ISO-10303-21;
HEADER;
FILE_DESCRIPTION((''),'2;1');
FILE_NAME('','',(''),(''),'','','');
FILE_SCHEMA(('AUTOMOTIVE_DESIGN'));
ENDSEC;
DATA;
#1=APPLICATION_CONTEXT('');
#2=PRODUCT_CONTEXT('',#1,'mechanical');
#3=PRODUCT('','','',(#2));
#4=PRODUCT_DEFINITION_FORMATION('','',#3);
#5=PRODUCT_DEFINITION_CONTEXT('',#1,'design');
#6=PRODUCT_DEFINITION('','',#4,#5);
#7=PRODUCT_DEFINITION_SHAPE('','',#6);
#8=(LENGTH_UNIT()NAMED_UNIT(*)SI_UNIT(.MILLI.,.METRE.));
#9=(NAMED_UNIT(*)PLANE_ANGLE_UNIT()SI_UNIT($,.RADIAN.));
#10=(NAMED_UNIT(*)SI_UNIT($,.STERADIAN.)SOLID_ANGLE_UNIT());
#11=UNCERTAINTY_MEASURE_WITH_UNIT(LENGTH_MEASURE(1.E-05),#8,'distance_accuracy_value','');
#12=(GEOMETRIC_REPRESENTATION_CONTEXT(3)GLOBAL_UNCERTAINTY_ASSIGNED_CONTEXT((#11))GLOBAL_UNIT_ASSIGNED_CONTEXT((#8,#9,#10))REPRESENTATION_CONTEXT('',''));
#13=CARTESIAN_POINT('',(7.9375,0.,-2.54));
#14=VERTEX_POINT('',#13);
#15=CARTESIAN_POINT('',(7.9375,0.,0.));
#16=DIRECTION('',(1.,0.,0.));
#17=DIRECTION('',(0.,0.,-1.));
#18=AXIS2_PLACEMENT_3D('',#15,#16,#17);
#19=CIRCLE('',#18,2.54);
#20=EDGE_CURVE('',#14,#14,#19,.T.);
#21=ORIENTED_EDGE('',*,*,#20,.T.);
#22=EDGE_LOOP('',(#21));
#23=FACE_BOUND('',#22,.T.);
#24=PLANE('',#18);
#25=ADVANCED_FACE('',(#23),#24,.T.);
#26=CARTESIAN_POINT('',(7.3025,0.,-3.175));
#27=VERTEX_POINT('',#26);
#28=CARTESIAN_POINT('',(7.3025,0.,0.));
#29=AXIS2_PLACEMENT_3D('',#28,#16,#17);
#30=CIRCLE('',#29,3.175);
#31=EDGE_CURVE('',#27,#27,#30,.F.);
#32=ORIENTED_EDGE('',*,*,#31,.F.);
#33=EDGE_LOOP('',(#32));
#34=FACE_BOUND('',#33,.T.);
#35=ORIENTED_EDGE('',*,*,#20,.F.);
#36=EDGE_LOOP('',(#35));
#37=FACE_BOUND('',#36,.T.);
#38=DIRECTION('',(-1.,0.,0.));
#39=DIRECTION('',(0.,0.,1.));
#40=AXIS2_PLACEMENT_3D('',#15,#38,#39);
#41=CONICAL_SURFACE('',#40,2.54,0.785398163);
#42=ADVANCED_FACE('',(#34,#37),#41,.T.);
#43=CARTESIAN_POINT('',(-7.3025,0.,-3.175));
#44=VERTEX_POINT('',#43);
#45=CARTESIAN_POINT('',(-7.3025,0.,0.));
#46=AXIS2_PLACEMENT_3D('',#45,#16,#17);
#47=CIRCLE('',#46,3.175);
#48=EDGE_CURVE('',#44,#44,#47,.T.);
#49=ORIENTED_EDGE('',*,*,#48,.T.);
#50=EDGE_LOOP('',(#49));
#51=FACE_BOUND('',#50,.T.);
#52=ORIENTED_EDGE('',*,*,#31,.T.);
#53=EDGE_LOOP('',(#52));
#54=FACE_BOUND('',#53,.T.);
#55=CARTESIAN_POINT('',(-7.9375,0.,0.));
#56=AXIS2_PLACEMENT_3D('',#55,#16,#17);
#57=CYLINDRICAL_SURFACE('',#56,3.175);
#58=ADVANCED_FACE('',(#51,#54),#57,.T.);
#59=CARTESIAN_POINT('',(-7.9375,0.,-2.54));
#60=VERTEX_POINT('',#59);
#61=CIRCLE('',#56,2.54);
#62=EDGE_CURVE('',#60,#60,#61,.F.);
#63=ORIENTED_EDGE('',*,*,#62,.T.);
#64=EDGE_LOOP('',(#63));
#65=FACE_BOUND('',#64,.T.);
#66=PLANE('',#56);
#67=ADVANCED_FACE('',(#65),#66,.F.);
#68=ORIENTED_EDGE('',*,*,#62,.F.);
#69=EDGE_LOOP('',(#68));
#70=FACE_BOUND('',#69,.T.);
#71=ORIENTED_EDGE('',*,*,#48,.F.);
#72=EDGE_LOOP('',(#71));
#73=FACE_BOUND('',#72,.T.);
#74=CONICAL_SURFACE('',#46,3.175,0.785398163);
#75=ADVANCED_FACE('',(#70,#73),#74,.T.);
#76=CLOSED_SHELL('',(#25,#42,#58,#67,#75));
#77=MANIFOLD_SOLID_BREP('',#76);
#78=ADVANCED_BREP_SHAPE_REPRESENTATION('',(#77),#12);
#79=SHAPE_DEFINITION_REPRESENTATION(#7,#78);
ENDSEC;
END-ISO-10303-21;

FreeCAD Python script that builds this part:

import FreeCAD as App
import Part
import Sketcher
from FreeCAD import Vector
Q = App.Units.Quantity


def edges_at(feature, points):
    """Names of the edges that pass closest to the given points."""
    edges = feature.Shape.Edges
    near = lambda p: min(range(len(edges)), key=lambda i: edges[i].distToShape(Part.Vertex(*p))[0])
    return sorted({f"Edge{near(p) + 1}" for p in points})

doc = App.newDocument("Part")
body = doc.addObject("PartDesign::Body", "Body")

# Sketch on YZ plane
sketch1 = body.newObject("Sketcher::SketchObject", "Sketch")
sketch1.AttachmentSupport = (doc.getObject("YZ_Plane"), [""])
sketch1.MapMode = "FlatFace"
sketch1.addGeometry(Part.Circle(Vector(0, 0, 0), Vector(0, 0, 1), 3.2), False)
sketch1.addConstraint(Sketcher.Constraint("Coincident", 0, 3, -1, 1))
sketch1.addConstraint(Sketcher.Constraint("Diameter", 0, Q("0.25 in")))
pad1 = body.newObject("PartDesign::Pad", "Pad")
pad1.Profile = sketch1
pad1.Type = "TwoLengths"
pad1.Length = Q("0.3125 in")
pad1.Length2 = Q("0.3125 in")
doc.recompute()

chamfer = body.newObject("PartDesign::Chamfer", "Chamfer")
chamfer.Base = (pad1, edges_at(pad1, [(-7.938, 0, 3.175), (7.938, 0, 3.175)]))
chamfer.Size = Q("0.025 in")

doc.recompute()
